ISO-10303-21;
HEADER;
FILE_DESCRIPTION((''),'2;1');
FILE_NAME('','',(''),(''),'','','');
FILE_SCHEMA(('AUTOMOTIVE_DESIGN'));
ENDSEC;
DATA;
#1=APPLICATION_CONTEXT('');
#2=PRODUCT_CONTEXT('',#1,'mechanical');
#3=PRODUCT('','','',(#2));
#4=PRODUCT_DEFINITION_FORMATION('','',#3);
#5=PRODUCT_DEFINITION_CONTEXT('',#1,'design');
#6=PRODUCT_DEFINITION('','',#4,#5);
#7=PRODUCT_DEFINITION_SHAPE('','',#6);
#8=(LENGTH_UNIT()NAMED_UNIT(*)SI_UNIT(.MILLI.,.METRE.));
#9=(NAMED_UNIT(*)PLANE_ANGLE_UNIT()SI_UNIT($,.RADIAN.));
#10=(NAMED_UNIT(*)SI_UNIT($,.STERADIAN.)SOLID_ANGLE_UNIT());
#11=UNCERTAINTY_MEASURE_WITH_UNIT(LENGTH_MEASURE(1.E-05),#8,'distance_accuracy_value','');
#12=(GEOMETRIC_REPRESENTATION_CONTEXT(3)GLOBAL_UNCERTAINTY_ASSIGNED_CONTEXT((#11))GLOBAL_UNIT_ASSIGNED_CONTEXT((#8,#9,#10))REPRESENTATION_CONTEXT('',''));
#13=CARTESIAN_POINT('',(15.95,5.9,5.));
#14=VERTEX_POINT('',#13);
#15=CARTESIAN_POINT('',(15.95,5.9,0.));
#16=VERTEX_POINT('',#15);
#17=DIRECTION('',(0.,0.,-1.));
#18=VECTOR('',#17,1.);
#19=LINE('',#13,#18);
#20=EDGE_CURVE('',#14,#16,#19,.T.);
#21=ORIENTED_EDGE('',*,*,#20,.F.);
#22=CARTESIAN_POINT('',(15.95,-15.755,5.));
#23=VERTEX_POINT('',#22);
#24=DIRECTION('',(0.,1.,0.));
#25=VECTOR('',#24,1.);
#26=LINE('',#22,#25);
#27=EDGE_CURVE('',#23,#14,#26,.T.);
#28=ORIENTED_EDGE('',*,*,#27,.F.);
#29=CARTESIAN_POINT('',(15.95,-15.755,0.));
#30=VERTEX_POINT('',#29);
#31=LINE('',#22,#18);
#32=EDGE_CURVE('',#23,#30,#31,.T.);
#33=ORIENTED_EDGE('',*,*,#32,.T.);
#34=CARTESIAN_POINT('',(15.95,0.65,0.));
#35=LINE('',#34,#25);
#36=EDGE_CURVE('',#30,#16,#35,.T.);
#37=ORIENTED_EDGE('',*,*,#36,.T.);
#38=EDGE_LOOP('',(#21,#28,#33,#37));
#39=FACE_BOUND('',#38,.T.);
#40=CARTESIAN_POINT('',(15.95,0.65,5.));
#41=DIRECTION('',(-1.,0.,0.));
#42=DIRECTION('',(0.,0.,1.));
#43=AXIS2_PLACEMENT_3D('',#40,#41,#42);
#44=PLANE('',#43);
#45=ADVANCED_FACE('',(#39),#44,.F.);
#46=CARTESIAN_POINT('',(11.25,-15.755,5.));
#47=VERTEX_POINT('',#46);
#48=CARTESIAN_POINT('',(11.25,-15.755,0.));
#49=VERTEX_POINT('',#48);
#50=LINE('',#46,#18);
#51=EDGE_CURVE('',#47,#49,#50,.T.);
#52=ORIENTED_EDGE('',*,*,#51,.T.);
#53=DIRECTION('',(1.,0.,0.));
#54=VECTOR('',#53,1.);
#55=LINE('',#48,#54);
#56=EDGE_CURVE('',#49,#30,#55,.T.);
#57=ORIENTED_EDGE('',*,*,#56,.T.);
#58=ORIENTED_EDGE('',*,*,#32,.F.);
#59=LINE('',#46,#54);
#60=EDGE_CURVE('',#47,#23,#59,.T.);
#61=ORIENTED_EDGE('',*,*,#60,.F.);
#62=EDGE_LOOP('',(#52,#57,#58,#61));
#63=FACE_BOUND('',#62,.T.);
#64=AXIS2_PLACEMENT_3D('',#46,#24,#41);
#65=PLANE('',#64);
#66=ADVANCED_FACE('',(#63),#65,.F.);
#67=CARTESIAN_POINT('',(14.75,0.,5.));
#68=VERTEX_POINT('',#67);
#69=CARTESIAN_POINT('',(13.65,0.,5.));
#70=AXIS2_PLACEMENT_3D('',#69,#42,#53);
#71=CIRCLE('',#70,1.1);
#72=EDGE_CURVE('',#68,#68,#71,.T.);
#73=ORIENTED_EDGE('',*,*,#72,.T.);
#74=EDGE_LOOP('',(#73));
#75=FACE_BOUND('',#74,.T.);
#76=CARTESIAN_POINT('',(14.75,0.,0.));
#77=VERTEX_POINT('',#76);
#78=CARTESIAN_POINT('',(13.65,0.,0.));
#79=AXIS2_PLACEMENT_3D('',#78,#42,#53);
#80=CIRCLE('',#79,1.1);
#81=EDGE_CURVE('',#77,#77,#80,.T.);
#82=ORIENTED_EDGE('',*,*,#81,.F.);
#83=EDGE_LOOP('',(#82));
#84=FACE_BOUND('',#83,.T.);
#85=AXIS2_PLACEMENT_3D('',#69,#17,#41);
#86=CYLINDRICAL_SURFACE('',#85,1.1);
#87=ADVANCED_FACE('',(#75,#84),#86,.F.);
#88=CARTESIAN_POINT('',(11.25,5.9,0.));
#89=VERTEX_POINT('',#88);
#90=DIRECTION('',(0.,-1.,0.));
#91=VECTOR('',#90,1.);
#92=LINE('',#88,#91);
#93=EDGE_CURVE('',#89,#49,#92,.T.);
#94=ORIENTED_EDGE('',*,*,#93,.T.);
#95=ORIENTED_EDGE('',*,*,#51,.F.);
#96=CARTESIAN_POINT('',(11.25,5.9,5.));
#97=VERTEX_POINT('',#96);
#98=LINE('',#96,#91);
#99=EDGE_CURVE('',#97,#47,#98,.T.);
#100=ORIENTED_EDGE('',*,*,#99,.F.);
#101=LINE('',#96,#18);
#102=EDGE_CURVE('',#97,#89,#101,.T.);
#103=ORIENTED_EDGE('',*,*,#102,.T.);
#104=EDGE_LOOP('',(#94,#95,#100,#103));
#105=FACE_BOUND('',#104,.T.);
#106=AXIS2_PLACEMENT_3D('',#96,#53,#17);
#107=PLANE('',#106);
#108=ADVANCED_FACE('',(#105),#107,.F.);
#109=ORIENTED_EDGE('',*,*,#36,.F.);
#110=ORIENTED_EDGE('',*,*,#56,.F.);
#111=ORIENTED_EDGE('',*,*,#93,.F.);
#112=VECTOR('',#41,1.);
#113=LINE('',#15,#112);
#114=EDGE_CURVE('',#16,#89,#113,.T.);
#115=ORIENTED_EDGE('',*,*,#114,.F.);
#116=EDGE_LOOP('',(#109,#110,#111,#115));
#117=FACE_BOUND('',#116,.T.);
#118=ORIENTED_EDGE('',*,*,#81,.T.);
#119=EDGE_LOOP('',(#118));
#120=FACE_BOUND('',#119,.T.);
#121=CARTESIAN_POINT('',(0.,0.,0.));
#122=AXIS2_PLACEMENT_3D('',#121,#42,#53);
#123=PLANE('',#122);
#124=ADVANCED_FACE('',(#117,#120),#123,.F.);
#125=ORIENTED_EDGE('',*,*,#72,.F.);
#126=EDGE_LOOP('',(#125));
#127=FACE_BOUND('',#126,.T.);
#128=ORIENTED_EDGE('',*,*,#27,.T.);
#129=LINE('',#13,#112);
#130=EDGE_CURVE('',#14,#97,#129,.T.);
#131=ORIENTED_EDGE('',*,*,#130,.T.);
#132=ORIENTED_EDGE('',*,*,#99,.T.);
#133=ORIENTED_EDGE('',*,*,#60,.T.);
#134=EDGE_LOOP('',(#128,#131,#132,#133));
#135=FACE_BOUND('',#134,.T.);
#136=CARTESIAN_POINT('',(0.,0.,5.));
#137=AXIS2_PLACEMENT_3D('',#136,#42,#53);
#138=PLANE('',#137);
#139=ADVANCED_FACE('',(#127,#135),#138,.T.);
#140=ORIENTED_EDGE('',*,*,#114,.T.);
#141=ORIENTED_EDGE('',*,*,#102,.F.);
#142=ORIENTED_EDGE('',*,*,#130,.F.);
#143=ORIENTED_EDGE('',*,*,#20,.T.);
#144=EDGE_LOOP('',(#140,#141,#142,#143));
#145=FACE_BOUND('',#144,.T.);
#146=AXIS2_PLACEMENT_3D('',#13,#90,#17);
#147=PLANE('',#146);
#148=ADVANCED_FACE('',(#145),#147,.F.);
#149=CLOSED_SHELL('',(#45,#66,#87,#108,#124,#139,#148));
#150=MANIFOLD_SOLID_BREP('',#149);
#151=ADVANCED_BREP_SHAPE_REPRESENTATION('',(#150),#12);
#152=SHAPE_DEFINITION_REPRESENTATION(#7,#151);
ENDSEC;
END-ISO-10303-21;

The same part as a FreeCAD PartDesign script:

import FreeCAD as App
import Part
import Sketcher

doc = App.newDocument("Part")
body = doc.addObject("PartDesign::Body", "Body")

# Sketch on XY plane
sketch1 = body.newObject("Sketcher::SketchObject", "Sketch")
sketch1.AttachmentSupport = (doc.getObject("XY_Plane"), [""])
sketch1.MapMode = "FlatFace"
sketch1.addGeometry([
    Part.LineSegment(App.Vector(11.2, -15.8, 0), App.Vector(15.9, -15.8, 0)),  # 0
    Part.LineSegment(App.Vector(15.9, -15.8, 0), App.Vector(15.9, 5.9, 0)),  # 1
    Part.LineSegment(App.Vector(15.9, 5.9, 0), App.Vector(11.2, 5.9, 0)),  # 2
    Part.LineSegment(App.Vector(11.2, 5.9, 0), App.Vector(11.2, -15.8, 0)),  # 3
    Part.Circle(App.Vector(13.7, 0, 0), App.Vector(0, 0, 1), 1.1),  # 4
], False)
sketch1.addConstraint([
    Sketcher.Constraint("Coincident", 0, 2, 1, 1),
    Sketcher.Constraint("Coincident", 1, 2, 2, 1),
    Sketcher.Constraint("Coincident", 2, 2, 3, 1),
    Sketcher.Constraint("Coincident", 3, 2, 0, 1),
    Sketcher.Constraint("Horizontal", 0),
    Sketcher.Constraint("Vertical", 1),
    Sketcher.Constraint("Horizontal", 2),
    Sketcher.Constraint("Vertical", 3),
    Sketcher.Constraint("PointOnObject", 4, 3, -1),
    Sketcher.Constraint("Diameter", 4, 2.2),
    Sketcher.Constraint("DistanceX", 0, 1, 0, 2, 4.7),
    Sketcher.Constraint("DistanceY", -1, 1, 1, 2, 5.9),
    Sketcher.Constraint("DistanceX", 4, 3, 0, 2, 2.3),
    Sketcher.Constraint("DistanceY", 1, 1, 1, 2, 21.655),
    Sketcher.Constraint("DistanceX", -1, 1, 4, 3, 13.65),
])
pad1 = body.newObject("PartDesign::Pad", "Pad")
pad1.Profile = sketch1
pad1.Length = 5

doc.recompute()
